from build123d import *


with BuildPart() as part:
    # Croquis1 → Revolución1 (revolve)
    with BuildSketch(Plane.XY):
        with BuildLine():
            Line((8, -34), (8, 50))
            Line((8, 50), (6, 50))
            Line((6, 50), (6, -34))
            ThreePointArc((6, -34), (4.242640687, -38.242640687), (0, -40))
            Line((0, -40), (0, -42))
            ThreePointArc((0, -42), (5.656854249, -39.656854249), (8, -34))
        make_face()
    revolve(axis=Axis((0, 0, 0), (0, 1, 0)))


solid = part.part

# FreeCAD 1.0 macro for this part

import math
import FreeCAD as App
import Part
import Sketcher
from FreeCAD import Vector

doc = App.newDocument("Part")
body = doc.addObject("PartDesign::Body", "Body")

sketch1 = doc.addObject("Sketcher::SketchObject", "Sketch")
body.addObject(sketch1)
sketch1.AttachmentSupport = (doc.XY_Plane, [""])
sketch1.MapMode = "FlatFace"
sketch1.addGeometry([
    Part.LineSegment(Vector(8, -34, 0), Vector(8, 50, 0)),
    Part.LineSegment(Vector(8, 50, 0), Vector(6, 50, 0)),
    Part.LineSegment(Vector(6, 50, 0), Vector(6, -34, 0)),
    Part.ArcOfCircle(Part.Circle(Vector(0, -34, 0), Vector(0, 0, 1), 6), math.radians(-90), math.radians(0)),
    Part.LineSegment(Vector(0, -40, 0), Vector(0, -42, 0)),
    Part.ArcOfCircle(Part.Circle(Vector(0, -34, 0), Vector(0, 0, 1), 8), math.radians(-90), math.radians(0)),
], False)
sketch1.addConstraint([
    Sketcher.Constraint("Coincident", 0, 2, 1, 1),
    Sketcher.Constraint("Coincident", 1, 2, 2, 1),
    Sketcher.Constraint("Tangent", 2, 2, 3, 2),
    Sketcher.Constraint("Coincident", 3, 1, 4, 1),
    Sketcher.Constraint("Coincident", 4, 2, 5, 1),
    Sketcher.Constraint("Tangent", 5, 2, 0, 1),
    Sketcher.Constraint("Vertical", 0),
    Sketcher.Constraint("Horizontal", 1),
    Sketcher.Constraint("Vertical", 2),
    Sketcher.Constraint("Vertical", 4),
    Sketcher.Constraint("Coincident", 5, 3, 3, 3),
    Sketcher.Constraint("PointOnObject", 3, 3, -2),
    Sketcher.Constraint("PointOnObject", 3, 1, -2),
    Sketcher.Constraint("Radius", 3, 6.0),
    Sketcher.Constraint("Radius", 5, 8.0),
    Sketcher.Constraint("DistanceY", 0, 1, 0, 2, 84.0),
    Sketcher.Constraint("DistanceY", 3, 3, -1, 1, 34.0),
])
revolution = doc.addObject("PartDesign::Revolution", "Revolution")
body.addObject(revolution)
revolution.Profile = sketch1
revolution.ReferenceAxis = (sketch1, ["V_Axis"])
revolution.Angle = 360

doc.recompute()
